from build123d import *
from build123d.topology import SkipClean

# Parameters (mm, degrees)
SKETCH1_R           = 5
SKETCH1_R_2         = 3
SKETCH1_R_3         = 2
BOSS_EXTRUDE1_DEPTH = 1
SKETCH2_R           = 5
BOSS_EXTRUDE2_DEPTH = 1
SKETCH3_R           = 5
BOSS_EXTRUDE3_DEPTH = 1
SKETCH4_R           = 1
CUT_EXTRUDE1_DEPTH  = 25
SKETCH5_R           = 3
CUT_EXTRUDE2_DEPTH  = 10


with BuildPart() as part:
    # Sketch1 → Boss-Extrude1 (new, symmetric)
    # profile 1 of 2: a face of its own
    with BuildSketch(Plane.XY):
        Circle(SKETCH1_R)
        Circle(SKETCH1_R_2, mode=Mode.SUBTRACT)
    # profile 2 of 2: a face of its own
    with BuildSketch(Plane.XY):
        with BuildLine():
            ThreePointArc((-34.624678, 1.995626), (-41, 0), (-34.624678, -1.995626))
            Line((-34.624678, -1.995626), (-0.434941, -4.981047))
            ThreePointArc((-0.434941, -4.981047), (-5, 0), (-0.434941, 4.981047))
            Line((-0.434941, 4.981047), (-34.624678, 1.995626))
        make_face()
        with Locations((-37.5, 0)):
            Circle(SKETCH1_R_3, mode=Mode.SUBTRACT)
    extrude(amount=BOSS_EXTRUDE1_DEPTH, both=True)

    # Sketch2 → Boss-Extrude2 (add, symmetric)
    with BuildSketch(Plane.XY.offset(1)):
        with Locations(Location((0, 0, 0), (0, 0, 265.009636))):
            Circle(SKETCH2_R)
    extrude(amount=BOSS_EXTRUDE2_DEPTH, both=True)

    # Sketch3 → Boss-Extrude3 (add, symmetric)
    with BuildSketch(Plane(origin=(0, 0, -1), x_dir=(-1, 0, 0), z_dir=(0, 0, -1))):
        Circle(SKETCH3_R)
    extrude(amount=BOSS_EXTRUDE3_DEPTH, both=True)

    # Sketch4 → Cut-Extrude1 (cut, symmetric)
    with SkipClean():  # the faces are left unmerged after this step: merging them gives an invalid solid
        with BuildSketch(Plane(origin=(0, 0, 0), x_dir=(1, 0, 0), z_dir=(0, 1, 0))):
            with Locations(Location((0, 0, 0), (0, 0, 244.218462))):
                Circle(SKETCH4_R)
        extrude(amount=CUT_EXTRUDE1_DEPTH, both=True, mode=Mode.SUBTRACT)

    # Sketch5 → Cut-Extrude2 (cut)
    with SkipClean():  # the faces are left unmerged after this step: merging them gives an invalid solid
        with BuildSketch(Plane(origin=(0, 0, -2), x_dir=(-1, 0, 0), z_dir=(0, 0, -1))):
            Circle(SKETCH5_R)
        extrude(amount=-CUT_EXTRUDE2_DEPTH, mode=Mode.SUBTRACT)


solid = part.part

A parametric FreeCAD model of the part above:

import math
import FreeCAD as App
import Part
import Sketcher

V = App.Vector

doc = App.newDocument("Part")
body = doc.addObject("PartDesign::Body", "Body")

sketch1 = body.newObject("Sketcher::SketchObject", "Sketch")
sketch1.AttachmentSupport = (doc.getObject("XY_Plane"), [""])
sketch1.MapMode = "FlatFace"
sketch1.addGeometry([
    Part.LineSegment(V(-0.434941, 4.981047, 0), V(-34.624678, 1.995626, 0)),
    Part.ArcOfCircle(Part.Circle(V(-37.5, 0, 0), V(0, 0, 1), 3.5), math.radians(34.762699), math.radians(325.237301)),
    Part.LineSegment(V(-34.624678, -1.995626, 0), V(-0.434941, -4.981047, 0)),
    Part.ArcOfCircle(Part.Circle(V(0, 0, 0), V(0, 0, 1), 5), math.radians(-94.990364), math.radians(94.990364)),
    Part.Circle(V(0, 0, 0), V(0, 0, 1), 3),
    Part.Circle(V(-37.5, 0, 0), V(0, 0, 1), 2),
], False)
sketch1.addConstraint([
    Sketcher.Constraint("Coincident", 0, 2, 1, 1),
    Sketcher.Constraint("Coincident", 1, 2, 2, 1),
    Sketcher.Constraint("Tangent", 2, 2, 3, 1),
    Sketcher.Constraint("Tangent", 3, 2, 0, 1),
    Sketcher.Constraint("Coincident", 3, 3, -1, 1),
    Sketcher.Constraint("Coincident", 4, 3, -1, 1),
    Sketcher.Constraint("Coincident", 5, 3, 1, 3),
    Sketcher.Constraint("Symmetric", 0, 2, 1, 2, -1),
    Sketcher.Constraint("Diameter", 4, 6.0),
    Sketcher.Constraint("Diameter", 5, 4.0),
    Sketcher.Constraint("Radius", 3, 5.0),
    Sketcher.Constraint("Radius", 1, 3.5),
    Sketcher.Constraint("DistanceX", 1, 3, -1, 1, 37.5),
    Sketcher.Constraint("Distance", 0, 34.319832),
])
pad1 = body.newObject("PartDesign::Pad", "Pad")
pad1.Profile = sketch1
pad1.Length = 2
pad1.Midplane = True

sketch2 = body.newObject("Sketcher::SketchObject", "Sketch001")
sketch2.AttachmentSupport = (doc.getObject("XY_Plane"), [""])
sketch2.MapMode = "FlatFace"
sketch2.AttachmentOffset = App.Placement(V(0, 0, 1), App.Rotation())
sketch2.addGeometry(Part.Circle(V(0, 0, 0), V(0, 0, 1), 5), False)
sketch2.addConstraint([
    Sketcher.Constraint("Coincident", 0, 3, -1, 1),
    Sketcher.Constraint("Diameter", 0, 10.0),
])
pad2 = body.newObject("PartDesign::Pad", "Pad001")
pad2.Profile = sketch2
pad2.Length = 2
pad2.Midplane = True

sketch3 = body.newObject("Sketcher::SketchObject", "Sketch002")
sketch3.AttachmentSupport = (doc.getObject("XY_Plane"), [""])
sketch3.MapMode = "FlatFace"
sketch3.AttachmentOffset = App.Placement(V(0, 0, -1), App.Rotation())
sketch3.addGeometry(Part.Circle(V(0, 0, 0), V(0, 0, 1), 5), False)
sketch3.addConstraint([
    Sketcher.Constraint("Coincident", 0, 3, -1, 1),
    Sketcher.Constraint("Diameter", 0, 10.0),
])
pad3 = body.newObject("PartDesign::Pad", "Pad002")
pad3.Profile = sketch3
pad3.Length = 2
pad3.Midplane = True

sketch4 = body.newObject("Sketcher::SketchObject", "Sketch003")
sketch4.AttachmentSupport = (doc.getObject("XZ_Plane"), [""])
sketch4.MapMode = "FlatFace"
sketch4.addGeometry(Part.Circle(V(0, 0, 0), V(0, 0, 1), 1), False)
sketch4.addConstraint([
    Sketcher.Constraint("Coincident", 0, 3, -1, 1),
    Sketcher.Constraint("Diameter", 0, 2.0),
])
pocket1 = body.newObject("PartDesign::Pocket", "Pocket")
pocket1.Profile = sketch4
pocket1.Length = 50
pocket1.Midplane = True

sketch5 = body.newObject("Sketcher::SketchObject", "Sketch004")
sketch5.AttachmentSupport = (doc.getObject("XY_Plane"), [""])
sketch5.MapMode = "FlatFace"
sketch5.AttachmentOffset = App.Placement(V(0, 0, -2), App.Rotation())
sketch5.addGeometry(Part.Circle(V(0, 0, 0), V(0, 0, 1), 3), False)
sketch5.addConstraint([
    Sketcher.Constraint("Coincident", 0, 3, -1, 1),
    Sketcher.Constraint("Diameter", 0, 6.0),
])
pocket2 = body.newObject("PartDesign::Pocket", "Pocket001")
pocket2.Profile = sketch5
pocket2.Length = 10
pocket2.Reversed = True

doc.recompute()
